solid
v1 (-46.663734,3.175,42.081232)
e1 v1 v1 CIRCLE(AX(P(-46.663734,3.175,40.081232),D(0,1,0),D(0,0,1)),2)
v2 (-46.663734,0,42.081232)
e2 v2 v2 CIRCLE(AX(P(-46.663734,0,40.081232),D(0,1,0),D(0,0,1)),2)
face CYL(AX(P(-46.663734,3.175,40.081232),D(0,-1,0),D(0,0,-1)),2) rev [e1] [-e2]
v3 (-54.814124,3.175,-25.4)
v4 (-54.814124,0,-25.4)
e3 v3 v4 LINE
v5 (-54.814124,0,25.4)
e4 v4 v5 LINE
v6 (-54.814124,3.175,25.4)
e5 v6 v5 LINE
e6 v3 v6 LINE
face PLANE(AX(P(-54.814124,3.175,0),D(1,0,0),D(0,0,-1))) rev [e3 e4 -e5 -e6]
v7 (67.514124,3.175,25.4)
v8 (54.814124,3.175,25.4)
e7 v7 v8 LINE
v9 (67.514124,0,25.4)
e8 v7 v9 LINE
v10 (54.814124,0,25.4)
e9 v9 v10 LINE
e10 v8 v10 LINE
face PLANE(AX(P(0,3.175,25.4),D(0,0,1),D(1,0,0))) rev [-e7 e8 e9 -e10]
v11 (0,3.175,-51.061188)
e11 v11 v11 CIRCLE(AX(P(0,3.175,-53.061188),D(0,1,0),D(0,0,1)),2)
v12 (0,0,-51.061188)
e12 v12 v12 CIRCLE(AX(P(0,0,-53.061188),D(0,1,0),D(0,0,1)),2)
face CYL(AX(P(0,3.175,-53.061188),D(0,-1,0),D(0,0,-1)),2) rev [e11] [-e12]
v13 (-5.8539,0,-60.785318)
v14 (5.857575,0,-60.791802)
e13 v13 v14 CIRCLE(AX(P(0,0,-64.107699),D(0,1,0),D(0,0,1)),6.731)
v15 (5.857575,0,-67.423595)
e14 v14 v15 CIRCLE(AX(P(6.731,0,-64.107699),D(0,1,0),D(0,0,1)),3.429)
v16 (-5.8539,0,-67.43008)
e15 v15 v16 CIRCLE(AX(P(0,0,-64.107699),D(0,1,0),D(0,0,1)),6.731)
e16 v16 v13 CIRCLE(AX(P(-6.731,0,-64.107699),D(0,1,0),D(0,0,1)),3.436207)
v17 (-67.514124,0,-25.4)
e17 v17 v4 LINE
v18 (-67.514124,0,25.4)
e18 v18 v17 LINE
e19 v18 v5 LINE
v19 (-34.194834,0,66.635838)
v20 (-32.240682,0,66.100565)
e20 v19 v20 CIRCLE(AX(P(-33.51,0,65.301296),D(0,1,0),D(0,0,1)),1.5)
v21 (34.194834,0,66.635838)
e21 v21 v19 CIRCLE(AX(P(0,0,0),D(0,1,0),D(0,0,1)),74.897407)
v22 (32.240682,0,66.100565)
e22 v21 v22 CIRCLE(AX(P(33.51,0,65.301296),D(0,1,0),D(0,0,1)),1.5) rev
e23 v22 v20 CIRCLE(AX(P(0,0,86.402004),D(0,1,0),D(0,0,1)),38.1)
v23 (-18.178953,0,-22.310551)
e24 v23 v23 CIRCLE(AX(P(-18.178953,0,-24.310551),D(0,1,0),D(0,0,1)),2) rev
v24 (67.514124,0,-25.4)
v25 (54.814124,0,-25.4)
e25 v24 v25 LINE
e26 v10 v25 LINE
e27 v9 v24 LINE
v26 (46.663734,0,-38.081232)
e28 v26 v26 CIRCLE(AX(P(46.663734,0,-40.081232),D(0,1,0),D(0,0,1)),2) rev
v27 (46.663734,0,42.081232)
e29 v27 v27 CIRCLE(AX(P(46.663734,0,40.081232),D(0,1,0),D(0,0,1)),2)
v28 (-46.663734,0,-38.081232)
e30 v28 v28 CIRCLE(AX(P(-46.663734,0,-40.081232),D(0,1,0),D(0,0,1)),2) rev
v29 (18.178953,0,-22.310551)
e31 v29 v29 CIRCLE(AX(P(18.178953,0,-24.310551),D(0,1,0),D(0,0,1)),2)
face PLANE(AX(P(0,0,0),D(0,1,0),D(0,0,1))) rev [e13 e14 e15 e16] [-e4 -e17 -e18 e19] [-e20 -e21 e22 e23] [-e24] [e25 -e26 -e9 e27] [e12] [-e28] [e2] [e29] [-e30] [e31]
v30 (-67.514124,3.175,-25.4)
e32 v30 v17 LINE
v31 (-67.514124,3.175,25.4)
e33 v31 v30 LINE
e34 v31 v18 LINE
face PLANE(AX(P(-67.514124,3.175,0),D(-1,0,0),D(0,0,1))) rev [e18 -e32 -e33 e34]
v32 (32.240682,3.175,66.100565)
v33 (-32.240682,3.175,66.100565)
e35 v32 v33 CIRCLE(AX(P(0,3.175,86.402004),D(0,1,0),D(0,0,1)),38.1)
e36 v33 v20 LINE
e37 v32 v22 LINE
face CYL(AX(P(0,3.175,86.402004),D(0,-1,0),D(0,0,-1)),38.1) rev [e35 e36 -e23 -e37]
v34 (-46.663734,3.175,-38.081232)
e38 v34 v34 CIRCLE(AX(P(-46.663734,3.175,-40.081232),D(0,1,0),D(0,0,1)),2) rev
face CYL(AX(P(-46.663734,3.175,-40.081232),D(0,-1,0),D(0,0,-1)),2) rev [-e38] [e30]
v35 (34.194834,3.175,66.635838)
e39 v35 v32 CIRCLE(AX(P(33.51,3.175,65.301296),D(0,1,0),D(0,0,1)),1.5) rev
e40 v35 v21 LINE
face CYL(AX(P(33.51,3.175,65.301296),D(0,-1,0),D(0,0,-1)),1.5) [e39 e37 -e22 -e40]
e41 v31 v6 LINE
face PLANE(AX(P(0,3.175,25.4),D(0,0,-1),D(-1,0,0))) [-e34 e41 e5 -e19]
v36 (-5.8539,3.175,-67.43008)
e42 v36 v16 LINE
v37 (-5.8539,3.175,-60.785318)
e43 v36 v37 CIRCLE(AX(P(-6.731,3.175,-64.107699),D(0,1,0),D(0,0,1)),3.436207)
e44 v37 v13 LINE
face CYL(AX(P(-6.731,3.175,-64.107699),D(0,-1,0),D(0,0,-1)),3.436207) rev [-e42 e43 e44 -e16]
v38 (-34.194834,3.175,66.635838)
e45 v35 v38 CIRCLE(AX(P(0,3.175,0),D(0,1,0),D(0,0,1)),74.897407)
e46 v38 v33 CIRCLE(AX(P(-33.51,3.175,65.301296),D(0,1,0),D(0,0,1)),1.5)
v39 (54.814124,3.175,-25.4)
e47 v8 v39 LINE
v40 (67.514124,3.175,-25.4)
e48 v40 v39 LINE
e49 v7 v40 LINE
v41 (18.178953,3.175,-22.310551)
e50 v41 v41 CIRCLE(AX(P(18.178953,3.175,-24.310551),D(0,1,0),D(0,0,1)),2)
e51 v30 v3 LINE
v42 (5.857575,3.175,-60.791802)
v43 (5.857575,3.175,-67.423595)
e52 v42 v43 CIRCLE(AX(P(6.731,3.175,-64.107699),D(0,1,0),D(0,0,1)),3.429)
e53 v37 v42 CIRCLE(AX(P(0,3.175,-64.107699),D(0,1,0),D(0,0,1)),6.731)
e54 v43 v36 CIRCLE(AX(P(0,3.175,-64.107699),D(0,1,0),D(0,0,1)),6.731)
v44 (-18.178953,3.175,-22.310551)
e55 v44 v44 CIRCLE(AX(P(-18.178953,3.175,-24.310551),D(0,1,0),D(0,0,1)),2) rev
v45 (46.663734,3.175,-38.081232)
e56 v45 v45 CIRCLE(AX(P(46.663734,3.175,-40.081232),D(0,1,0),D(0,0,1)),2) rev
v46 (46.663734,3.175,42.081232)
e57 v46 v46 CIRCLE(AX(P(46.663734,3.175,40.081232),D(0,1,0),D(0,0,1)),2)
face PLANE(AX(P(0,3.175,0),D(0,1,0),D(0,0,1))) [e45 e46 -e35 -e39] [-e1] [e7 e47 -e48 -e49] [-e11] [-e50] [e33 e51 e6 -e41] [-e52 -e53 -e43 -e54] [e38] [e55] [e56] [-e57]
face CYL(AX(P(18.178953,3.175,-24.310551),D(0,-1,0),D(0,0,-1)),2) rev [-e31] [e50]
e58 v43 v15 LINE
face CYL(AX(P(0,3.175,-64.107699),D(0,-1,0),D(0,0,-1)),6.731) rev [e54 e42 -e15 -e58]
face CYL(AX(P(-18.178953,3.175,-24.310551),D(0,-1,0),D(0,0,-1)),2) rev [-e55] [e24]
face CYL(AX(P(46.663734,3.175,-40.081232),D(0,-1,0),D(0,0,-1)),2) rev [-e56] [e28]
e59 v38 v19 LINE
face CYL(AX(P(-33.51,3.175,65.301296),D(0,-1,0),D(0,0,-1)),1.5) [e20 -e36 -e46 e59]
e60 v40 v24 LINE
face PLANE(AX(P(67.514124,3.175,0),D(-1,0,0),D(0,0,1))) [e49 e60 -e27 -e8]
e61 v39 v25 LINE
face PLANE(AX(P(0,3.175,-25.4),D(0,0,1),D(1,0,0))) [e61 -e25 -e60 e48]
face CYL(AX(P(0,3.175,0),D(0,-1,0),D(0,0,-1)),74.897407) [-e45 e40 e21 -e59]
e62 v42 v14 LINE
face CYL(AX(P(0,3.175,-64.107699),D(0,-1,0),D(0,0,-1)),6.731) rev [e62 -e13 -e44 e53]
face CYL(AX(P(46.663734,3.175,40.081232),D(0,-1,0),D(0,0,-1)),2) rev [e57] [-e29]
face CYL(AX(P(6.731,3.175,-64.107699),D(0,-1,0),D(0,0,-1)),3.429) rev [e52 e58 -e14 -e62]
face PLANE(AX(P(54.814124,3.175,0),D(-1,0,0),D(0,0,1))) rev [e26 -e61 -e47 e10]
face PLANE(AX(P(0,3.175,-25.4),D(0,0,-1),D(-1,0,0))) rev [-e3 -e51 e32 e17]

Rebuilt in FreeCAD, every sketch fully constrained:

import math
import FreeCAD as App
import Part
import Sketcher
Q = App.Units.Quantity


def add_polygon(sketch, points):
    """Adds a closed chain of lines whose ends are joined by coincident constraints."""
    first, n = sketch.GeometryCount, len(points)
    for a, b in zip(points, points[1:] + points[:1]):
        sketch.addGeometry(Part.LineSegment(App.Vector(*a, 0), App.Vector(*b, 0)), False)
    for i in range(n):
        sketch.addConstraint(Sketcher.Constraint("Coincident", first + i, 2, first + (i + 1) % n, 1))

doc = App.newDocument("Part")
body = doc.addObject("PartDesign::Body", "Body")

# Sketch on XZ plane
sketch1 = doc.addObject("Sketcher::SketchObject", "Sketch")
body.addObject(sketch1)
sketch1.AttachmentSupport = (doc.XZ_Plane, [""])
sketch1.MapMode = "FlatFace"
sketch1.addGeometry(Part.ArcOfCircle(Part.Circle(App.Vector(33.51, 65.301296, 0), App.Vector(0, 0, 1), 1.5), math.radians(62.834929), math.radians(147.802038)), False)  # 0
sketch1.addGeometry(Part.ArcOfCircle(Part.Circle(App.Vector(0, 0, 0), App.Vector(0, 0, 1), 74.897407), math.radians(117.165072), math.radians(422.834928)), False)  # 1
sketch1.addGeometry(Part.ArcOfCircle(Part.Circle(App.Vector(-33.51, 65.301296, 0), App.Vector(0, 0, 1), 1.5), math.radians(32.197962), math.radians(117.165071)), False)  # 2
sketch1.addGeometry(Part.ArcOfCircle(Part.Circle(App.Vector(0, 86.402004, 0), App.Vector(0, 0, 1), 38.1), math.radians(-147.802038), math.radians(-32.197962)), False)  # 3
sketch1.addGeometry(Part.Circle(App.Vector(46.663734, 40.081232, 0), App.Vector(0, 0, 1), 2), False)  # 4
add_polygon(sketch1, [(54.814124, 25.4), (54.814124, -25.4), (67.514124, -25.4), (67.514124, 25.4)])  # lines 5-8
sketch1.addGeometry(Part.Circle(App.Vector(-46.663734, 40.081232, 0), App.Vector(0, 0, 1), 2), False)  # 9
add_polygon(sketch1, [(-67.514124, 25.4), (-67.514124, -25.4), (-54.814124, -25.4), (-54.814124, 25.4)])  # lines 10-13
sketch1.addGeometry(Part.Circle(App.Vector(46.663734, -40.081232, 0), App.Vector(0, 0, 1), 2), False)  # 14
sketch1.addGeometry(Part.Circle(App.Vector(18.178953, -24.310551, 0), App.Vector(0, 0, 1), 2), False)  # 15
sketch1.addGeometry(Part.Circle(App.Vector(-18.178953, -24.310551, 0), App.Vector(0, 0, 1), 2), False)  # 16
sketch1.addGeometry(Part.Circle(App.Vector(-46.663734, -40.081232, 0), App.Vector(0, 0, 1), 2), False)  # 17
sketch1.addGeometry(Part.Circle(App.Vector(0, -53.061188, 0), App.Vector(0, 0, 1), 2), False)  # 18
sketch1.addGeometry(Part.ArcOfCircle(Part.Circle(App.Vector(-6.731, -64.107699, 0), App.Vector(0, 0, 1), 3.436207), math.radians(75.211461), math.radians(284.788539)), False)  # 19
sketch1.addGeometry(Part.ArcOfCircle(Part.Circle(App.Vector(0, -64.107699, 0), App.Vector(0, 0, 1), 6.731), math.radians(-150.422922), math.radians(-29.513631)), False)  # 20
sketch1.addGeometry(Part.ArcOfCircle(Part.Circle(App.Vector(6.731, -64.107699, 0), App.Vector(0, 0, 1), 3.429), math.radians(-104.756816), math.radians(104.756816)), False)  # 21
sketch1.addGeometry(Part.ArcOfCircle(Part.Circle(App.Vector(0, -64.107699, 0), App.Vector(0, 0, 1), 6.731), math.radians(29.513631), math.radians(150.422922)), False)  # 22
sketch1.addConstraint([
    Sketcher.Constraint("Tangent", 0, 1, 1, 2),
    Sketcher.Constraint("Tangent", 1, 1, 2, 2),
    Sketcher.Constraint("Tangent", 2, 1, 3, 1),
    Sketcher.Constraint("Tangent", 3, 2, 0, 2),
    Sketcher.Constraint("Coincident", 19, 2, 20, 1),
    Sketcher.Constraint("Coincident", 20, 2, 21, 1),
    Sketcher.Constraint("Coincident", 21, 2, 22, 1),
    Sketcher.Constraint("Coincident", 22, 2, 19, 1),
    Sketcher.Constraint("Vertical", 5),
    Sketcher.Constraint("Horizontal", 6),
    Sketcher.Constraint("Vertical", 7),
    Sketcher.Constraint("Horizontal", 8),
    Sketcher.Constraint("Vertical", 10),
    Sketcher.Constraint("Horizontal", 11),
    Sketcher.Constraint("Vertical", 12),
    Sketcher.Constraint("Horizontal", 13),
    Sketcher.Constraint("Coincident", 1, 3, -1, 1),
    Sketcher.Constraint("Coincident", 22, 3, 20, 3),
    Sketcher.Constraint("Equal", 0, 2),
    Sketcher.Constraint("Equal", 4, 9),
    Sketcher.Constraint("Equal", 9, 14),
    Sketcher.Constraint("Equal", 14, 15),
    Sketcher.Constraint("Equal", 15, 16),
    Sketcher.Constraint("Equal", 16, 17),
    Sketcher.Constraint("Equal", 17, 18),
    Sketcher.Constraint("Equal", 20, 22),
    Sketcher.Constraint("Symmetric", 9, 3, 14, 3, -1, 1),
    Sketcher.Constraint("Symmetric", 4, 3, 17, 3, -1, 1),
    Sketcher.Constraint("Symmetric", 7, 2, 10, 2, -1, 1),
    Sketcher.Constraint("Symmetric", 5, 2, 12, 2, -1, 1),
    Sketcher.Constraint("Symmetric", 4, 3, 9, 3, -2),
    Sketcher.Constraint("Symmetric", 15, 3, 16, 3, -2),
    Sketcher.Constraint("Symmetric", 19, 3, 21, 3, -2),
    Sketcher.Constraint("PointOnObject", 3, 3, -2),
    Sketcher.Constraint("PointOnObject", 18, 3, -2),
    Sketcher.Constraint("PointOnObject", 20, 3, -2),
    Sketcher.Constraint("Horizontal", 19, 3, 20, 3),
    Sketcher.Constraint("Horizontal", 6, 2, 10, 2),
    Sketcher.Constraint("Radius", 3, Q("1.5 in")),
    Sketcher.Constraint("DistanceY", 5, 2, 5, 1, Q("2 in")),
    Sketcher.Constraint("DistanceX", 6, 1, 6, 2, Q("0.5 in")),
    Sketcher.Constraint("Radius", 20, Q("0.265 in")),
    Sketcher.Constraint("Radius", 21, Q("0.135 in")),
    Sketcher.Constraint("Diameter", 4, 4.0),
    Sketcher.Constraint("Radius", 0, 1.5),
    Sketcher.Constraint("DistanceX", 19, 3, 21, 3, Q("0.53 in")),
    Sketcher.Constraint("Radius", 1, 74.897407),
    Sketcher.Constraint("Radius", 19, 3.436207),
    Sketcher.Constraint("DistanceX", -1, 1, 0, 3, 33.51),
    Sketcher.Constraint("DistanceY", 19, 3, -1, 1, 64.107699),
    Sketcher.Constraint("DistanceX", 0, 1, 4, 3, 12.4689),
    Sketcher.Constraint("DistanceY", -1, 1, 4, 3, 40.081232),
    Sketcher.Constraint("DistanceY", 15, 3, -1, 1, 24.310551),
    Sketcher.Constraint("DistanceX", 15, 3, 14, 3, 28.484781),
    Sketcher.Constraint("DistanceY", 19, 3, 18, 3, 11.046511),
    Sketcher.Constraint("DistanceX", 14, 3, 5, 2, 8.15039),
])
pad1 = doc.addObject("PartDesign::Pad", "Pad")
body.addObject(pad1)
pad1.Profile = sketch1
pad1.Length = Q("0.125 in")
pad1.Reversed = True

doc.recompute()
